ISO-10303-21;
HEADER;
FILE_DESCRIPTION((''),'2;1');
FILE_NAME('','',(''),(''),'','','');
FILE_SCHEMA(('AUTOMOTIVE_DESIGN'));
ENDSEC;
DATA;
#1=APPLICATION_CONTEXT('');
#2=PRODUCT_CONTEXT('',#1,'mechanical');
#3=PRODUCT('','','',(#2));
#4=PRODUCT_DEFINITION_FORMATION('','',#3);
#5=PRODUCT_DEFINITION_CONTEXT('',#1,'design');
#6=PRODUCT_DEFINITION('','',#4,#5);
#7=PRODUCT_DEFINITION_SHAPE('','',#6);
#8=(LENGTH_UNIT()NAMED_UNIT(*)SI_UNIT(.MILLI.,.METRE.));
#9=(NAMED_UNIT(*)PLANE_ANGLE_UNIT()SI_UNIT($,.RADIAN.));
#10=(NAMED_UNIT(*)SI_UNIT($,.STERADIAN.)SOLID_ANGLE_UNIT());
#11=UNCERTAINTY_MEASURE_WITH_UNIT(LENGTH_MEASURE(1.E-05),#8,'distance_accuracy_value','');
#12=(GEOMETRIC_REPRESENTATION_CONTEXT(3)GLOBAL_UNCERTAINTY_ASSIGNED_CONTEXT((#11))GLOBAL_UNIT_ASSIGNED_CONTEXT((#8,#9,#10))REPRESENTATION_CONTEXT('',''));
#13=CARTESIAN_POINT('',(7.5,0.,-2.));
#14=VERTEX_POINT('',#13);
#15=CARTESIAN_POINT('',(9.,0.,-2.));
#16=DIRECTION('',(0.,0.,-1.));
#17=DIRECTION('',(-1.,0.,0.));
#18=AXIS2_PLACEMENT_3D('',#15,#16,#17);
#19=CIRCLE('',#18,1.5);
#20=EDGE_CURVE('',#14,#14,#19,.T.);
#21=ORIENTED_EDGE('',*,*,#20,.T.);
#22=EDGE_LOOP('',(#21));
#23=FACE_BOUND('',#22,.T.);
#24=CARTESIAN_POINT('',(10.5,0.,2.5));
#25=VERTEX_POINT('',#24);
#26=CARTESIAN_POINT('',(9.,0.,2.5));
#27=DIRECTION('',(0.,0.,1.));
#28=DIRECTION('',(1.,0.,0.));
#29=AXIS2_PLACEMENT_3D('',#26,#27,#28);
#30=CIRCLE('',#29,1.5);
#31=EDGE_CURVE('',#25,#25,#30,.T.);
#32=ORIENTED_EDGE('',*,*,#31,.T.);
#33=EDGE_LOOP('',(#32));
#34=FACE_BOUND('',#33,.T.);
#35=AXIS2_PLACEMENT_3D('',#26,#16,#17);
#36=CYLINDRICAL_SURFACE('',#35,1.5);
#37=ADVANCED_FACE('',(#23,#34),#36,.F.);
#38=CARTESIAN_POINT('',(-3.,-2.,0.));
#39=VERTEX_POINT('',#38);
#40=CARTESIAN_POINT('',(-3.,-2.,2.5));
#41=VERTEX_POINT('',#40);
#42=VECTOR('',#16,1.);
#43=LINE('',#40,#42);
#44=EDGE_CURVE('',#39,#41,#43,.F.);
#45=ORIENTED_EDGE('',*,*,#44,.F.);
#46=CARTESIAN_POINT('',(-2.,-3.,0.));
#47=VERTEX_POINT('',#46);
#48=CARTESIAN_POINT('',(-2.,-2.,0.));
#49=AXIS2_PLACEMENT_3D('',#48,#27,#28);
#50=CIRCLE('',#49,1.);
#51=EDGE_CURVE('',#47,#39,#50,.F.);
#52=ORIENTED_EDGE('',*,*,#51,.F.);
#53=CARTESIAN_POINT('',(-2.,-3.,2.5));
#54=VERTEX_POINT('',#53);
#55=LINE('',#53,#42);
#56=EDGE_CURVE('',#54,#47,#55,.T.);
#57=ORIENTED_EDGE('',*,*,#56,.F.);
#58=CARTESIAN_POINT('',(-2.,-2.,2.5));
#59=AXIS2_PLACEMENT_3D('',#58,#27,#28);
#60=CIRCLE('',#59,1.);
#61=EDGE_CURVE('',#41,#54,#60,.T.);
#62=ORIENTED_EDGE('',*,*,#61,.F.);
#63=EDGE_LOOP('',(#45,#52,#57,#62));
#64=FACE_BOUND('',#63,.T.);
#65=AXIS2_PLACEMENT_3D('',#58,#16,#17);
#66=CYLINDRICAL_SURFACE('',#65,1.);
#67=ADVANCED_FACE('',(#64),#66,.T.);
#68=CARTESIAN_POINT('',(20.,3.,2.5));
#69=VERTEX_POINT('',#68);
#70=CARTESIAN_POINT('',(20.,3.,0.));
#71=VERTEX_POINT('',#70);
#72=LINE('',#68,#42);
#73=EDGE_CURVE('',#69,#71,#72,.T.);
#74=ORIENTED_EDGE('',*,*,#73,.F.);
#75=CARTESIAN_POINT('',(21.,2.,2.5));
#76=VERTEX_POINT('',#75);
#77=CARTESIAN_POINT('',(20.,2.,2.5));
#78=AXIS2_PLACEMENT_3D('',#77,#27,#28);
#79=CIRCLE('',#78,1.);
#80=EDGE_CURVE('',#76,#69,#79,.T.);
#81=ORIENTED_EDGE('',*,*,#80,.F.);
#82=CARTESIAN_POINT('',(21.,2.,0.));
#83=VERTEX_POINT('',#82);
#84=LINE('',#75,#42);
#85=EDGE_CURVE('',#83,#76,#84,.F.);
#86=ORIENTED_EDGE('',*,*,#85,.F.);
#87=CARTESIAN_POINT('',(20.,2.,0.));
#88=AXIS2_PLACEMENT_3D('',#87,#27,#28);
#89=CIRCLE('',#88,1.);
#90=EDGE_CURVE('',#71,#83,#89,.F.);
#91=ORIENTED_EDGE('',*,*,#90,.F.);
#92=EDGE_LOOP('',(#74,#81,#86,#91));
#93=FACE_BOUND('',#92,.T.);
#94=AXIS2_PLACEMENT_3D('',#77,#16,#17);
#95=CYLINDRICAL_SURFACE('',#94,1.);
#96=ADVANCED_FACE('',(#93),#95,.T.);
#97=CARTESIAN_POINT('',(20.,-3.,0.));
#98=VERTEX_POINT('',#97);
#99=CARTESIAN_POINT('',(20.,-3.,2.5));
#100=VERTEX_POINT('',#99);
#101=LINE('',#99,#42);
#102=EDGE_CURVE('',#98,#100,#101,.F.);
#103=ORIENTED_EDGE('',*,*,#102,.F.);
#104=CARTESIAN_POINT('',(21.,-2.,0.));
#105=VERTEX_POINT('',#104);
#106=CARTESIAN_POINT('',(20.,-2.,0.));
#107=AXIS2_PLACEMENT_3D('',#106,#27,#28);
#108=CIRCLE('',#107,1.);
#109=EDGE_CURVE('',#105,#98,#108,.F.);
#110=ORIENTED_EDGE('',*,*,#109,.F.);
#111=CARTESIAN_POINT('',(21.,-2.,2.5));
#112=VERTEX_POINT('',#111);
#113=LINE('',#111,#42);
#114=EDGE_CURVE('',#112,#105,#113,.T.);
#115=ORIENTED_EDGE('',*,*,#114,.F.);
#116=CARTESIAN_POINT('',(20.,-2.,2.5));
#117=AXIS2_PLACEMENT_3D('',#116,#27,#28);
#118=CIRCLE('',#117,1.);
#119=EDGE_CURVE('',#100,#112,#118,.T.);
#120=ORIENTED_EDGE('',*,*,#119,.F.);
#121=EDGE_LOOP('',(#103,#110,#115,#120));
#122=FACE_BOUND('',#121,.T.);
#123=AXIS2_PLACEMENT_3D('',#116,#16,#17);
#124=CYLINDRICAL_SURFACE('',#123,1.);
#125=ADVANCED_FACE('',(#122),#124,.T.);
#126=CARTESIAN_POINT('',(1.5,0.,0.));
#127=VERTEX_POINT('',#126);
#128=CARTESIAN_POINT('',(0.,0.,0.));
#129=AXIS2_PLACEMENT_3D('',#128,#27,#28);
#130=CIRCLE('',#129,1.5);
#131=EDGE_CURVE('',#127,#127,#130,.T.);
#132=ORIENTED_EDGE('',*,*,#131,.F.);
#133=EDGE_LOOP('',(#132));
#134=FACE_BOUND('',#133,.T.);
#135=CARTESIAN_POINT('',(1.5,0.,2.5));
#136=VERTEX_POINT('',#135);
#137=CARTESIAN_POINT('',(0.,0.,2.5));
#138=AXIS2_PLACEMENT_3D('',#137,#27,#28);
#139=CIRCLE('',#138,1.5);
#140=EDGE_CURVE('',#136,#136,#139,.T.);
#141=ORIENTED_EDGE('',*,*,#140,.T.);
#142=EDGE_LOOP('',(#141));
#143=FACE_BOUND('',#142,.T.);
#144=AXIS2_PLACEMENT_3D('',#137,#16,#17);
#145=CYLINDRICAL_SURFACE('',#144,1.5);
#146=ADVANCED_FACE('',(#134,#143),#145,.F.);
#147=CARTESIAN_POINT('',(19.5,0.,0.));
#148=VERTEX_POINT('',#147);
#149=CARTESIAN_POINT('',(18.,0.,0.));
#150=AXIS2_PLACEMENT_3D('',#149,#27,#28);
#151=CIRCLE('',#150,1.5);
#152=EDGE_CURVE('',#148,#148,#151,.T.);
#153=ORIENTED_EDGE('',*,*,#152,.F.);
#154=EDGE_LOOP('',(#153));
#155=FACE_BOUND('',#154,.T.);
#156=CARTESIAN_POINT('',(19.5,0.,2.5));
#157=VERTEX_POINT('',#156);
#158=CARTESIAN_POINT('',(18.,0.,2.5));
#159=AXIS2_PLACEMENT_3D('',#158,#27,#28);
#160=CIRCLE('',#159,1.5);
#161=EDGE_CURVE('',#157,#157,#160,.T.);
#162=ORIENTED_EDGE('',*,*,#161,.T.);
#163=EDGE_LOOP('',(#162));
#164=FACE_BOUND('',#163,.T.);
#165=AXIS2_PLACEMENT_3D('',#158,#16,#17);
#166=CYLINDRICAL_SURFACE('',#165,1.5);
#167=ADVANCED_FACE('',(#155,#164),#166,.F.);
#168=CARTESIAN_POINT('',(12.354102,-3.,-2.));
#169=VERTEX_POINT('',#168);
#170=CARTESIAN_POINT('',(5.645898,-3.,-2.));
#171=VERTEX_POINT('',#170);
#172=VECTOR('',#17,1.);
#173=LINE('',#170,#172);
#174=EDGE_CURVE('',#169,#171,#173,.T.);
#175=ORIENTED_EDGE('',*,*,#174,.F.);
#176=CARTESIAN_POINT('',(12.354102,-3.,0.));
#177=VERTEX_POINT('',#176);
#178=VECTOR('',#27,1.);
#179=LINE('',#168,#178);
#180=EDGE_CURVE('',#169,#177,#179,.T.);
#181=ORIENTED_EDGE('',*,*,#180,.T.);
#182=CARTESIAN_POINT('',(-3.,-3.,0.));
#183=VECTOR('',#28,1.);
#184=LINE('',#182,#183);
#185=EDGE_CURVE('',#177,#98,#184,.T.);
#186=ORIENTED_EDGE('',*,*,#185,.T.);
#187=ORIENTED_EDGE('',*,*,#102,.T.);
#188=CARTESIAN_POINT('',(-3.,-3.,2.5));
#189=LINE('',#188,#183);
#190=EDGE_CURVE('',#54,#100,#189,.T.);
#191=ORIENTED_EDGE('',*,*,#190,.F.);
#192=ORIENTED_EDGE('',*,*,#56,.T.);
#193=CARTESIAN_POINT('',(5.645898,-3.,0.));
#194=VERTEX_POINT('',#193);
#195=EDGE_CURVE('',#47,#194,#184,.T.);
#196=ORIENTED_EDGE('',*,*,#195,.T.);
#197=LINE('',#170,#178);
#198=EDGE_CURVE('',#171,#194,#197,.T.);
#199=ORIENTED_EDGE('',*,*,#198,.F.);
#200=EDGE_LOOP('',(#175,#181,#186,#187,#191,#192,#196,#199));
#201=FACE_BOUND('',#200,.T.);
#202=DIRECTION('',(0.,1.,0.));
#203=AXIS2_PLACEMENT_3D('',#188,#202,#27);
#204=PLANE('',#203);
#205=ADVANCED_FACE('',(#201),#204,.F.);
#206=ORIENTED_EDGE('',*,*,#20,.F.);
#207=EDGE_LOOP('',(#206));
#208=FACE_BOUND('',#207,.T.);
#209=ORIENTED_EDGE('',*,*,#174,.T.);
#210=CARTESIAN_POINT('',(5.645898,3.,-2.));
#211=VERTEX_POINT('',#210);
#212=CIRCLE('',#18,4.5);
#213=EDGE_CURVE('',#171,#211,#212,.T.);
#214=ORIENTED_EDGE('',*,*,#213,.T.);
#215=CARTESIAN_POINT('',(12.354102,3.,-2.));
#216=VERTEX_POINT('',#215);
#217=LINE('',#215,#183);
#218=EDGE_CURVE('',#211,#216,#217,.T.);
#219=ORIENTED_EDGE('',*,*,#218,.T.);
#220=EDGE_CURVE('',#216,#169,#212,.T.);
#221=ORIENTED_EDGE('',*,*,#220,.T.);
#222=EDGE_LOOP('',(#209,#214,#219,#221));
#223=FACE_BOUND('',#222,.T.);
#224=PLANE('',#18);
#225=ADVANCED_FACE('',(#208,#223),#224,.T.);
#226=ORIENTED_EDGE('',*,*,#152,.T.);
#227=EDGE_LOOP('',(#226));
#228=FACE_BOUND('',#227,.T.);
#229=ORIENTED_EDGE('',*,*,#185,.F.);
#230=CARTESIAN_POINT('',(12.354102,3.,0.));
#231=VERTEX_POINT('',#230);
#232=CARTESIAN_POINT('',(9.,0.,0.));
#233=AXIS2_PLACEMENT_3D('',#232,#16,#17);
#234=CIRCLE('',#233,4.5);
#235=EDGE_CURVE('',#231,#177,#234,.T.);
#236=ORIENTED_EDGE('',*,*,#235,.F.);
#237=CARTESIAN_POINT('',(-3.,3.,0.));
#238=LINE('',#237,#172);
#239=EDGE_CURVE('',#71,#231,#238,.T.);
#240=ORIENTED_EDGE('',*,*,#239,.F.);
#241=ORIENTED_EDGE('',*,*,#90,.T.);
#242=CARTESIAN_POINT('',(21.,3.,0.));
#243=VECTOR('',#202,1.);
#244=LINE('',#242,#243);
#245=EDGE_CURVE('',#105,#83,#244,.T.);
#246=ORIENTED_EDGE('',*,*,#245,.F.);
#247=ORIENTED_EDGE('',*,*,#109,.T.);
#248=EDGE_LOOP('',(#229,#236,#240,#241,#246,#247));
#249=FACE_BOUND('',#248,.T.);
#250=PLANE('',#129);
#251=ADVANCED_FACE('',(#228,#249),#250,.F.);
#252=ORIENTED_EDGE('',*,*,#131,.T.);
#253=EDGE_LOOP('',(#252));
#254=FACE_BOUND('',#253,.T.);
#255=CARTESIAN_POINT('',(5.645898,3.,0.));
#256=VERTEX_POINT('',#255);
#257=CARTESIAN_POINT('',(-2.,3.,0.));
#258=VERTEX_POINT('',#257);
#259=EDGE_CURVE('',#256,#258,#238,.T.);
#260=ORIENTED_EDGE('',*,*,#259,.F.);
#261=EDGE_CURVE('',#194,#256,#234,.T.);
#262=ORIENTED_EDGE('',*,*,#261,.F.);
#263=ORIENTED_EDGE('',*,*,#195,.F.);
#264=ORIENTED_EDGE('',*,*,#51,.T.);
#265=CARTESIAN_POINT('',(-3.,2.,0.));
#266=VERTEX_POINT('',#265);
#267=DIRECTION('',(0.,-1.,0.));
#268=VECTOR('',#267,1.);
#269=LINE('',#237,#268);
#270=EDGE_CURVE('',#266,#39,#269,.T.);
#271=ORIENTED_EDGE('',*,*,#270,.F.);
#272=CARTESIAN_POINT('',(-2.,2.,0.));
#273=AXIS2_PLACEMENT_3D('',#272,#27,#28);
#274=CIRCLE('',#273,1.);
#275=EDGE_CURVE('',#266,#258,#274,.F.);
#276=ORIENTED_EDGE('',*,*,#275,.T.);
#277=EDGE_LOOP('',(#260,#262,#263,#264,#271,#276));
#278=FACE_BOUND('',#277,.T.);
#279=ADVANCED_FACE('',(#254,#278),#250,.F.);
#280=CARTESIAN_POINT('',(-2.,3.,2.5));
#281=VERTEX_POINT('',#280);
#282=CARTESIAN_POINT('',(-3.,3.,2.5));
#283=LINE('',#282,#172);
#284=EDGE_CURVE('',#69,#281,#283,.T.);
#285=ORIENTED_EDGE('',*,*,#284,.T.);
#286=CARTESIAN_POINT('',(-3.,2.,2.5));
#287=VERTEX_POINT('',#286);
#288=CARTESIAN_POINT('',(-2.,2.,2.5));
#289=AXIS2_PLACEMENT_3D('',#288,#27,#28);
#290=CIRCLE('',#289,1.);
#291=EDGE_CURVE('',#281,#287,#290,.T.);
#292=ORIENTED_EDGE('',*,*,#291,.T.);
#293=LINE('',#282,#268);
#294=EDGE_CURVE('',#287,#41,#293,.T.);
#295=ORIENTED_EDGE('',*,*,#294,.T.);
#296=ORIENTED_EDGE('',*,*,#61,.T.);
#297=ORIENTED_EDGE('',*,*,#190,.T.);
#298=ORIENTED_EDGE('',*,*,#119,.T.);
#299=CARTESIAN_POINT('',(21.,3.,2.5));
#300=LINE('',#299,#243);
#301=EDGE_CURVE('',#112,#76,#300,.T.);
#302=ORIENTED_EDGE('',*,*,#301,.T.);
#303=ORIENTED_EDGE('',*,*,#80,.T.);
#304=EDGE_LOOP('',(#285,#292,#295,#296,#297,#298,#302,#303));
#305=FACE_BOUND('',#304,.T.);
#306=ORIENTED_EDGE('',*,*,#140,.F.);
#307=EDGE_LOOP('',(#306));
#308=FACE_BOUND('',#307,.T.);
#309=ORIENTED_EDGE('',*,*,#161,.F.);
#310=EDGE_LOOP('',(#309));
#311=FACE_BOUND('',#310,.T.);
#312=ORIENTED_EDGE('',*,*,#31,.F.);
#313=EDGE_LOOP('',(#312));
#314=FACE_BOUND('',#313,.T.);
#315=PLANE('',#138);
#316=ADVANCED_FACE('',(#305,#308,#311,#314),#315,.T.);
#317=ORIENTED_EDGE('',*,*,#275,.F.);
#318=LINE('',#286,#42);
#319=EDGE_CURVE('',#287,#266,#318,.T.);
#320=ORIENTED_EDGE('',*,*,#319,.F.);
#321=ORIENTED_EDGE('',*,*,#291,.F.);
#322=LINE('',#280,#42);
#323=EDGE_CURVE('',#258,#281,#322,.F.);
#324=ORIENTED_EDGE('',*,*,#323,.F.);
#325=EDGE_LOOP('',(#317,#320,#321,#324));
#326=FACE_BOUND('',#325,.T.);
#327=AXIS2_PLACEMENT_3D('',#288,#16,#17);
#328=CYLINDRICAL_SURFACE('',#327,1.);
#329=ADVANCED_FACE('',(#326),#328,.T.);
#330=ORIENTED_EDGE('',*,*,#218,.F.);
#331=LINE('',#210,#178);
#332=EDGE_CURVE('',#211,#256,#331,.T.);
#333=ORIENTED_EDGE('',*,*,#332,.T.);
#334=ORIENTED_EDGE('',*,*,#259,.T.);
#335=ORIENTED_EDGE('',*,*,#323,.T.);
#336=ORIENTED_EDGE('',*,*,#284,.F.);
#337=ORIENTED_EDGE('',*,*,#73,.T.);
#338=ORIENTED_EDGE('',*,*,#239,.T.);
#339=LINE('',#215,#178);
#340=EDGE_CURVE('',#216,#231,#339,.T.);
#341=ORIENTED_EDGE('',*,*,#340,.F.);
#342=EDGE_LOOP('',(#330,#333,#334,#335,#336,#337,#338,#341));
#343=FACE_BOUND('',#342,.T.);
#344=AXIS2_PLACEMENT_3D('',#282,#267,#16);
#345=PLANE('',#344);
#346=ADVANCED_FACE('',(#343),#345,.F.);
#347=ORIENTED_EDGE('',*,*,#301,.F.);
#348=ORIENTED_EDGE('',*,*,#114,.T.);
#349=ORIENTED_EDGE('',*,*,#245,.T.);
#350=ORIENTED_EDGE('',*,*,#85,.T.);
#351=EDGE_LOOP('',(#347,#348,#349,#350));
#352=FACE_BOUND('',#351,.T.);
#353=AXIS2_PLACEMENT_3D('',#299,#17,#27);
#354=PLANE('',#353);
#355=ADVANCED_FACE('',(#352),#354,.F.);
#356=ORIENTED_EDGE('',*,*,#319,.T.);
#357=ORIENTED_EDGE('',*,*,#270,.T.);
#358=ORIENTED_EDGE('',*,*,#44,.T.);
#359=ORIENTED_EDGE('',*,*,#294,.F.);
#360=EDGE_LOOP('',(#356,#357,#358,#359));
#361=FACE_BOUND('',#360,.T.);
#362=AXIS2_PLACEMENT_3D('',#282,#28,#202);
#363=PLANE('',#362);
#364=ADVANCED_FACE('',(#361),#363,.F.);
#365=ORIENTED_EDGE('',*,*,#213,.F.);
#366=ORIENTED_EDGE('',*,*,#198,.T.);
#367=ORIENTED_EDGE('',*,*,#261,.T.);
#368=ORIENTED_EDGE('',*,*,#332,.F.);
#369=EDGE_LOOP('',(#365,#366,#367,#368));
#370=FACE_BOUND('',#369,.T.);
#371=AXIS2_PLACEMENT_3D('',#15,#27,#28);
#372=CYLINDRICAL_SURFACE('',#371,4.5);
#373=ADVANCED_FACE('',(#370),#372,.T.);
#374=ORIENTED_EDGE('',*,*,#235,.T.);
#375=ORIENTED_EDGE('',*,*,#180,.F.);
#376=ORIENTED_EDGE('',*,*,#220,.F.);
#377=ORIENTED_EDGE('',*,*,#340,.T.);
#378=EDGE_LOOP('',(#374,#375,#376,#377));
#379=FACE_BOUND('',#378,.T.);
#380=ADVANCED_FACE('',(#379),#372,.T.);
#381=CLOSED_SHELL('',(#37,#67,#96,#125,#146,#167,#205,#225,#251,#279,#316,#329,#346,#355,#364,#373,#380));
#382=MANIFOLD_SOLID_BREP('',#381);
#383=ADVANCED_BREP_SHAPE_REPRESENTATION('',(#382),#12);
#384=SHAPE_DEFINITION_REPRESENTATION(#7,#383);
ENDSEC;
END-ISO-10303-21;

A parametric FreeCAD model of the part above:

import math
import FreeCAD as App
import Part
import Sketcher

V = App.Vector
Q = App.Units.Quantity


def edges_at(feature, points):
    """Names of the edges that pass closest to the given points."""
    edges = feature.Shape.Edges
    near = lambda p: min(range(len(edges)), key=lambda i: edges[i].distToShape(Part.Vertex(*p))[0])
    return sorted({f"Edge{near(p) + 1}" for p in points})

doc = App.newDocument("Part")
body = doc.addObject("PartDesign::Body", "Body")

sketch1 = body.newObject("Sketcher::SketchObject", "Sketch")
sketch1.AttachmentSupport = (doc.getObject("XY_Plane"), [""])
sketch1.MapMode = "FlatFace"
sketch1.addGeometry([
    Part.LineSegment(V(-3, 3, 0), V(-3, -3, 0)),
    Part.LineSegment(V(-3, -3, 0), V(21, -3, 0)),
    Part.LineSegment(V(21, -3, 0), V(21, 3, 0)),
    Part.LineSegment(V(21, 3, 0), V(-3, 3, 0)),
    Part.Circle(V(0, 0, 0), V(0, 0, 1), 1.5),
    Part.Circle(V(9, 0, 0), V(0, 0, 1), 1.5),
    Part.Circle(V(18, 0, 0), V(0, 0, 1), 1.5),
], False)
sketch1.addConstraint([
    Sketcher.Constraint("Coincident", 0, 2, 1, 1),
    Sketcher.Constraint("Coincident", 1, 2, 2, 1),
    Sketcher.Constraint("Coincident", 2, 2, 3, 1),
    Sketcher.Constraint("Coincident", 3, 2, 0, 1),
    Sketcher.Constraint("Vertical", 0),
    Sketcher.Constraint("Horizontal", 1),
    Sketcher.Constraint("Vertical", 2),
    Sketcher.Constraint("Horizontal", 3),
    Sketcher.Constraint("Coincident", 4, 3, -1, 1),
    Sketcher.Constraint("Equal", 4, 5),
    Sketcher.Constraint("Equal", 5, 6),
    Sketcher.Constraint("PointOnObject", 5, 3, -1),
    Sketcher.Constraint("PointOnObject", 6, 3, -1),
    Sketcher.Constraint("Diameter", 4, Q("3 mm")),
    Sketcher.Constraint("DistanceX", 1, 1, 1, 2, Q("24 mm")),
    Sketcher.Constraint("DistanceY", 0, 2, 0, 1, Q("6 mm")),
    Sketcher.Constraint("DistanceX", -1, 1, 5, 3, Q("9 mm")),
    Sketcher.Constraint("DistanceX", -1, 1, 6, 3, Q("18 mm")),
    Sketcher.Constraint("DistanceX", 0, 2, -1, 1, Q("3 mm")),
    Sketcher.Constraint("DistanceY", 0, 2, -1, 1, Q("3 mm")),
])
pad1 = body.newObject("PartDesign::Pad", "Pad")
pad1.Profile = sketch1
pad1.Length = 2.5
doc.recompute()

fillet = body.newObject("PartDesign::Fillet", "Fillet")
fillet.Base = (pad1, edges_at(pad1, [(-3, 3, 1.25)]))
fillet.Radius = 1
doc.recompute()

fillet2 = body.newObject("PartDesign::Fillet", "Fillet001")
fillet2.Base = (fillet, edges_at(fillet, [(21, 3, 1.25), (21, -3, 1.25), (-3, -3, 1.25)]))
fillet2.Radius = 1

sketch2 = body.newObject("Sketcher::SketchObject", "Sketch001")
sketch2.AttachmentSupport = (doc.getObject("XY_Plane"), [""])
sketch2.MapMode = "FlatFace"
sketch2.AttachmentOffset = App.Placement(V(0, 0, -2), App.Rotation())
sketch2.addGeometry([
    Part.LineSegment(V(12.354102, -3, 0), V(5.645898, -3, 0)),
    Part.ArcOfCircle(Part.Circle(V(9, 0, 0), V(0, 0, 1), 4.5), math.radians(138.189685), math.radians(221.810315)),
    Part.LineSegment(V(5.645898, 3, 0), V(12.354102, 3, 0)),
    Part.ArcOfCircle(Part.Circle(V(9, 0, 0), V(0, 0, 1), 4.5), math.radians(-41.810315), math.radians(41.810315)),
    Part.Circle(V(9, 0, 0), V(0, 0, 1), 1.5),
], False)
sketch2.addConstraint([
    Sketcher.Constraint("Coincident", 0, 2, 1, 2),
    Sketcher.Constraint("Coincident", 1, 1, 2, 1),
    Sketcher.Constraint("Coincident", 2, 2, 3, 2),
    Sketcher.Constraint("Coincident", 3, 1, 0, 1),
    Sketcher.Constraint("Horizontal", 0),
    Sketcher.Constraint("Horizontal", 2),
    Sketcher.Constraint("Coincident", 3, 3, 1, 3),
    Sketcher.Constraint("Coincident", 4, 3, 1, 3),
    Sketcher.Constraint("Equal", 1, 3),
    Sketcher.Constraint("Symmetric", 0, 2, 1, 1, -1),
    Sketcher.Constraint("Diameter", 4, Q("3 mm")),
    Sketcher.Constraint("Radius", 1, Q("4.5 mm")),
    Sketcher.Constraint("DistanceX", -1, 1, 1, 3, Q("9 mm")),
    Sketcher.Constraint("DistanceY", 0, 2, -1, 1, Q("3 mm")),
])
pad2 = body.newObject("PartDesign::Pad", "Pad001")
pad2.Profile = sketch2
pad2.Length = 2

doc.recompute()
